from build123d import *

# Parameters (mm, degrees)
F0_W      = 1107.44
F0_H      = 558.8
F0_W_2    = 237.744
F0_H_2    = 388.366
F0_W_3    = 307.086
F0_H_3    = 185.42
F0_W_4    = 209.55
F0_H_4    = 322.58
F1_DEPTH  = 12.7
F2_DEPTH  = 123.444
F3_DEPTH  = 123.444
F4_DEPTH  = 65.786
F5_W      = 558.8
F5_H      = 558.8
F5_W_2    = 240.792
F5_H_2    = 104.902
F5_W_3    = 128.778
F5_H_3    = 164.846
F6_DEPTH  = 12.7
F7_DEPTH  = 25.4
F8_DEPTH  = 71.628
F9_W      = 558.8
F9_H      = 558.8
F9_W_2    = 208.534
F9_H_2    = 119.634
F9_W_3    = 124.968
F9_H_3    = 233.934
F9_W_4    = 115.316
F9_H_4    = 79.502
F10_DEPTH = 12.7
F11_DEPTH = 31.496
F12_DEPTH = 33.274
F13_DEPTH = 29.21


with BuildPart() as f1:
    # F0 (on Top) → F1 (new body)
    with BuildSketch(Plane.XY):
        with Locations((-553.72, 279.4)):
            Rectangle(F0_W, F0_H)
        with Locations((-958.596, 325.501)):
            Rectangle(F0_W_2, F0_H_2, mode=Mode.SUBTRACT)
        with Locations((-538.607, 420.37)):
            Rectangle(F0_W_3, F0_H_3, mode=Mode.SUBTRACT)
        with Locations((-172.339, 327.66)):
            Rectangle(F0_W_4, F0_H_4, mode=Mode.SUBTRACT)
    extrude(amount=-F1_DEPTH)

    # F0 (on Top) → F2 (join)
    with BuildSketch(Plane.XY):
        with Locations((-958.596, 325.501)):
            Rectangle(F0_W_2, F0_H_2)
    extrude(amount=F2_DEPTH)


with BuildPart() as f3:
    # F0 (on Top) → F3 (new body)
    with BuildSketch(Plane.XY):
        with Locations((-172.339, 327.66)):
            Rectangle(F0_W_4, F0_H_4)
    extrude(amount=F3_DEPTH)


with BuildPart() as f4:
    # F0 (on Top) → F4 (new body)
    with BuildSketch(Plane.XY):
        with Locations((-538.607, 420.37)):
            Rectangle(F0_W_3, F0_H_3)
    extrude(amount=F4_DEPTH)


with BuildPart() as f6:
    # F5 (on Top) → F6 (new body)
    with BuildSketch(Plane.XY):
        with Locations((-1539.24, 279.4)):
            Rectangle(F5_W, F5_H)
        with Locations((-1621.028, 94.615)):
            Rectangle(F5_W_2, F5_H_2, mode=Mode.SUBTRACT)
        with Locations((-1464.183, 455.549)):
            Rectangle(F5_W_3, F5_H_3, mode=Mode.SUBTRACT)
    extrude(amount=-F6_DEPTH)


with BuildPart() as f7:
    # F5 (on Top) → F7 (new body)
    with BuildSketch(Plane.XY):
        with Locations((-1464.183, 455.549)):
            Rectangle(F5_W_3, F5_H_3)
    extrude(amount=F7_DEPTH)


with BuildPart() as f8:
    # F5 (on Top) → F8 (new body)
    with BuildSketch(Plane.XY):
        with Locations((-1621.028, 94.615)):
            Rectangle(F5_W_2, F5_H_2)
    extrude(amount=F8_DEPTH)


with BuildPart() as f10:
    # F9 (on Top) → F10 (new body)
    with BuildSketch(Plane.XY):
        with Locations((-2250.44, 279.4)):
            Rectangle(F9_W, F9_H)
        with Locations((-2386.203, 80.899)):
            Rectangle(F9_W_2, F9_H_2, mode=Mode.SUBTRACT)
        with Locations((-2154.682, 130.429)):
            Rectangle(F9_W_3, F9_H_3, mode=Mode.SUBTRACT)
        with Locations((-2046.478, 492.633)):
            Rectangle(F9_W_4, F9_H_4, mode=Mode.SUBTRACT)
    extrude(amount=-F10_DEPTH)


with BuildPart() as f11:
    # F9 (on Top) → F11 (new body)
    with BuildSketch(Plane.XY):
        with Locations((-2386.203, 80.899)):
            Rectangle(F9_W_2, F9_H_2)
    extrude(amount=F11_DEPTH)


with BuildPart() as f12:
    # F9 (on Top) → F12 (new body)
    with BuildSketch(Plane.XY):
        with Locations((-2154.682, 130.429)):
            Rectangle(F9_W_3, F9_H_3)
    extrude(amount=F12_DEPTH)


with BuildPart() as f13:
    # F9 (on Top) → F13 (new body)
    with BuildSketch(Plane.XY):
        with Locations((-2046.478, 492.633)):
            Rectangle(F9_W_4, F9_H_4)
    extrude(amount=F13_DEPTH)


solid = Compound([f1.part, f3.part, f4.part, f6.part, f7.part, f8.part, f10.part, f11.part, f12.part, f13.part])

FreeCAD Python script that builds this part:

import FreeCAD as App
import Part
import Sketcher

V = App.Vector
Q = App.Units.Quantity


def add_polygon(sketch, points):
    """Adds a closed chain of lines whose ends are joined by coincident constraints."""
    first, n = sketch.GeometryCount, len(points)
    for a, b in zip(points, points[1:] + points[:1]):
        sketch.addGeometry(Part.LineSegment(App.Vector(*a, 0), App.Vector(*b, 0)), False)
    for i in range(n):
        sketch.addConstraint(Sketcher.Constraint("Coincident", first + i, 2, first + (i + 1) % n, 1))

doc = App.newDocument("Part")
params = doc.addObject("Spreadsheet::Sheet", "Params")
for row, (alias, value) in enumerate([
    ("sketch1_height", "22 in"),
    ("sketch1_width", "43.6 in"),
    ("sketch1_height2", "7.3 in"),
    ("sketch1_height3", "12.7 in"),
    ("sketch1_width2", "9.36 in"),
    ("pad1_length", "0.5 in"),
    ("sketch2_width", "9.36 in"),
    ("sketch2_height", "15.29 in"),
    ("pad2_length", "4.86 in"),
    ("sketch3_height", "12.7 in"),
    ("sketch3_width", "8.25 in"),
    ("pad3_length", "4.86 in"),
    ("sketch4_height", "7.3 in"),
    ("sketch4_width", "12.09 in"),
    ("pad4_length", "2.59 in"),
    ("sketch5_width", "22 in"),
    ("sketch5_width2", "9.48 in"),
    ("sketch5_width3", "5.07 in"),
    ("sketch5_height", "4.13 in"),
    ("sketch5_height2", "6.49 in"),
    ("pad5_length", "0.5 in"),
    ("sketch6_width", "5.07 in"),
    ("sketch6_height", "6.49 in"),
    ("pad6_length", "1 in"),
    ("sketch7_width", "9.48 in"),
    ("sketch7_height", "4.13 in"),
    ("pad7_length", "2.82 in"),
    ("sketch8_width", "22 in"),
    ("sketch8_width2", "8.21 in"),
    ("sketch8_width3", "4.92 in"),
    ("sketch8_width4", "4.54 in"),
    ("sketch8_height", "4.71 in"),
    ("pad8_length", "0.5 in"),
    ("sketch9_width", "8.21 in"),
    ("sketch9_height", "4.71 in"),
    ("pad9_length", "1.24 in"),
    ("sketch10_width", "4.92 in"),
    ("sketch10_height", "9.21 in"),
    ("pad10_length", "1.31 in"),
    ("sketch11_width", "4.54 in"),
    ("sketch11_height", "3.13 in"),
    ("pad11_length", "1.15 in"),
], start=1):
    params.set(f"A{row}", alias)
    params.set(f"B{row}", "=" + value)
    params.setAlias(f"B{row}", alias)

body = doc.addObject("PartDesign::Body", "Body")
body.AllowCompound = True

# Sketch on XY plane
sketch1 = body.newObject("Sketcher::SketchObject", "Sketch")
sketch1.AttachmentSupport = (doc.getObject("XY_Plane"), [""])
sketch1.MapMode = "FlatFace"
add_polygon(sketch1, [(-1107, 559), (-1107, 0), (0, 0), (0, 559)])  # lines 0-3
add_polygon(sketch1, [(-840, 131), (-1077, 131), (-1077, 520), (-840, 520)])  # lines 4-7
add_polygon(sketch1, [(-385, 328), (-692, 328), (-692, 513), (-385, 513)])  # lines 8-11
add_polygon(sketch1, [(-68, 166), (-277, 166), (-277, 489), (-68, 489)])  # lines 12-15
sketch1.addConstraint(Sketcher.Constraint("Vertical", 0))
sketch1.addConstraint(Sketcher.Constraint("Horizontal", 1))
sketch1.addConstraint(Sketcher.Constraint("Vertical", 2))
sketch1.addConstraint(Sketcher.Constraint("Horizontal", 3))
sketch1.addConstraint(Sketcher.Constraint("Horizontal", 4))
sketch1.addConstraint(Sketcher.Constraint("Vertical", 5))
sketch1.addConstraint(Sketcher.Constraint("Horizontal", 6))
sketch1.addConstraint(Sketcher.Constraint("Vertical", 7))
sketch1.addConstraint(Sketcher.Constraint("Horizontal", 8))
sketch1.addConstraint(Sketcher.Constraint("Vertical", 9))
sketch1.addConstraint(Sketcher.Constraint("Horizontal", 10))
sketch1.addConstraint(Sketcher.Constraint("Vertical", 11))
sketch1.addConstraint(Sketcher.Constraint("Horizontal", 12))
sketch1.addConstraint(Sketcher.Constraint("Vertical", 13))
sketch1.addConstraint(Sketcher.Constraint("Horizontal", 14))
sketch1.addConstraint(Sketcher.Constraint("Vertical", 15))
sketch1.addConstraint(Sketcher.Constraint("Coincident", 1, 2, -1, 1))
sketch1.addConstraint(Sketcher.Constraint("DistanceY", 0, 2, 0, 1, Q("22 in")))
sketch1.addConstraint(Sketcher.Constraint("DistanceX", 1, 1, 1, 2, Q("43.6 in")))
sketch1.addConstraint(Sketcher.Constraint("DistanceY", 9, 1, 9, 2, Q("7.3 in")))
sketch1.addConstraint(Sketcher.Constraint("DistanceY", 13, 1, 13, 2, Q("12.7 in")))
sketch1.addConstraint(Sketcher.Constraint("DistanceX", 4, 2, 4, 1, Q("9.36 in")))
sketch1.addConstraint(Sketcher.Constraint("DistanceX", 8, 2, 8, 1, Q("12.09 in")))
sketch1.addConstraint(Sketcher.Constraint("DistanceX", 12, 2, 12, 1, Q("8.25 in")))
sketch1.addConstraint(Sketcher.Constraint("DistanceY", 5, 1, 5, 2, Q("15.29 in")))
sketch1.addConstraint(Sketcher.Constraint("DistanceY", -1, 1, 8, 2, Q("12.9 in")))
sketch1.addConstraint(Sketcher.Constraint("DistanceX", 6, 2, 10, 2, Q("17.9 in")))
sketch1.addConstraint(Sketcher.Constraint("DistanceX", 10, 2, 14, 2, Q("12.5 in")))
sketch1.addConstraint(Sketcher.Constraint("DistanceX", 4, 2, -1, 1, Q("42.42 in")))
sketch1.addConstraint(Sketcher.Constraint("DistanceY", -1, 1, 4, 2, Q("5.17 in")))
sketch1.addConstraint(Sketcher.Constraint("DistanceY", -1, 1, 12, 2, Q("6.55 in")))
sketch1.setExpression("Constraints[33]", "Params.sketch1_height")
sketch1.setExpression("Constraints[34]", "Params.sketch1_width")
sketch1.setExpression("Constraints[35]", "Params.sketch1_height2")
sketch1.setExpression("Constraints[36]", "Params.sketch1_height3")
sketch1.setExpression("Constraints[37]", "Params.sketch1_width2")
pad1 = body.newObject("PartDesign::Pad", "Pad")
pad1.Profile = sketch1
pad1.setExpression("Length", "Params.pad1_length")
pad1.Reversed = True

# Sketch on XY plane
sketch2 = body.newObject("Sketcher::SketchObject", "Sketch001")
sketch2.AttachmentSupport = (doc.getObject("XY_Plane"), [""])
sketch2.MapMode = "FlatFace"
add_polygon(sketch2, [(-1077, 520), (-1077, 131), (-840, 131), (-840, 520)])  # lines 0-3
sketch2.addConstraint(Sketcher.Constraint("Vertical", 0))
sketch2.addConstraint(Sketcher.Constraint("Horizontal", 1))
sketch2.addConstraint(Sketcher.Constraint("Vertical", 2))
sketch2.addConstraint(Sketcher.Constraint("Horizontal", 3))
sketch2.addConstraint(Sketcher.Constraint("DistanceX", 1, 1, 1, 2, Q("9.36 in")))
sketch2.addConstraint(Sketcher.Constraint("DistanceY", 0, 2, 0, 1, Q("15.29 in")))
sketch2.addConstraint(Sketcher.Constraint("DistanceX", 0, 2, -1, 1, Q("42.42 in")))
sketch2.addConstraint(Sketcher.Constraint("DistanceY", -1, 1, 0, 2, Q("5.17 in")))
sketch2.setExpression("Constraints[8]", "Params.sketch2_width")
sketch2.setExpression("Constraints[9]", "Params.sketch2_height")
pad2 = body.newObject("PartDesign::Pad", "Pad001")
pad2.Profile = sketch2
pad2.setExpression("Length", "Params.pad2_length")
body2 = doc.addObject("PartDesign::Body", "Body001")

# Sketch on XY plane
sketch3 = body2.newObject("Sketcher::SketchObject", "Sketch002")
sketch3.AttachmentSupport = (doc.getObject("XY_Plane001"), [""])
sketch3.MapMode = "FlatFace"
add_polygon(sketch3, [(-277, 489), (-277, 166), (-68, 166), (-68, 489)])  # lines 0-3
sketch3.addConstraint(Sketcher.Constraint("Vertical", 0))
sketch3.addConstraint(Sketcher.Constraint("Horizontal", 1))
sketch3.addConstraint(Sketcher.Constraint("Vertical", 2))
sketch3.addConstraint(Sketcher.Constraint("Horizontal", 3))
sketch3.addConstraint(Sketcher.Constraint("DistanceY", 0, 2, 0, 1, Q("12.7 in")))
sketch3.addConstraint(Sketcher.Constraint("DistanceX", 1, 1, 1, 2, Q("8.25 in")))
sketch3.addConstraint(Sketcher.Constraint("DistanceX", 0, 2, -1, 1, Q("10.91 in")))
sketch3.addConstraint(Sketcher.Constraint("DistanceY", -1, 1, 0, 2, Q("6.55 in")))
sketch3.setExpression("Constraints[8]", "Params.sketch3_height")
sketch3.setExpression("Constraints[9]", "Params.sketch3_width")
pad3 = body2.newObject("PartDesign::Pad", "Pad002")
pad3.Profile = sketch3
pad3.setExpression("Length", "Params.pad3_length")
body3 = doc.addObject("PartDesign::Body", "Body002")

# Sketch on XY plane
sketch4 = body3.newObject("Sketcher::SketchObject", "Sketch003")
sketch4.AttachmentSupport = (doc.getObject("XY_Plane002"), [""])
sketch4.MapMode = "FlatFace"
add_polygon(sketch4, [(-692, 513), (-692, 328), (-385, 328), (-385, 513)])  # lines 0-3
sketch4.addConstraint(Sketcher.Constraint("Vertical", 0))
sketch4.addConstraint(Sketcher.Constraint("Horizontal", 1))
sketch4.addConstraint(Sketcher.Constraint("Vertical", 2))
sketch4.addConstraint(Sketcher.Constraint("Horizontal", 3))
sketch4.addConstraint(Sketcher.Constraint("DistanceY", 0, 2, 0, 1, Q("7.3 in")))
sketch4.addConstraint(Sketcher.Constraint("DistanceX", 1, 1, 1, 2, Q("12.09 in")))
sketch4.addConstraint(Sketcher.Constraint("DistanceY", -1, 1, 0, 2, Q("12.9 in")))
sketch4.addConstraint(Sketcher.Constraint("DistanceX", 0, 2, -1, 1, Q("27.25 in")))
sketch4.setExpression("Constraints[8]", "Params.sketch4_height")
sketch4.setExpression("Constraints[9]", "Params.sketch4_width")
pad4 = body3.newObject("PartDesign::Pad", "Pad003")
pad4.Profile = sketch4
pad4.setExpression("Length", "Params.pad4_length")
body4 = doc.addObject("PartDesign::Body", "Body003")

# Sketch on XY plane
sketch5 = body4.newObject("Sketcher::SketchObject", "Sketch004")
sketch5.AttachmentSupport = (doc.getObject("XY_Plane003"), [""])
sketch5.MapMode = "FlatFace"
add_polygon(sketch5, [(-1819, 559), (-1819, 0), (-1260, 0), (-1260, 559)])  # lines 0-3
add_polygon(sketch5, [(-1501, 42), (-1741, 42), (-1741, 147), (-1501, 147)])  # lines 4-7
add_polygon(sketch5, [(-1400, 373), (-1529, 373), (-1529, 538), (-1400, 538)])  # lines 8-11
sketch5.addConstraint(Sketcher.Constraint("Vertical", 0))
sketch5.addConstraint(Sketcher.Constraint("Horizontal", 1))
sketch5.addConstraint(Sketcher.Constraint("Vertical", 2))
sketch5.addConstraint(Sketcher.Constraint("Horizontal", 3))
sketch5.addConstraint(Sketcher.Constraint("Horizontal", 4))
sketch5.addConstraint(Sketcher.Constraint("Vertical", 5))
sketch5.addConstraint(Sketcher.Constraint("Horizontal", 6))
sketch5.addConstraint(Sketcher.Constraint("Vertical", 7))
sketch5.addConstraint(Sketcher.Constraint("Horizontal", 8))
sketch5.addConstraint(Sketcher.Constraint("Vertical", 9))
sketch5.addConstraint(Sketcher.Constraint("Horizontal", 10))
sketch5.addConstraint(Sketcher.Constraint("Vertical", 11))
sketch5.addConstraint(Sketcher.Constraint("PointOnObject", 0, 2, -1))
sketch5.addConstraint(Sketcher.Constraint("Equal", 3, 0))
sketch5.addConstraint(Sketcher.Constraint("DistanceX", 1, 1, 1, 2, Q("22 in")))
sketch5.addConstraint(Sketcher.Constraint("DistanceX", 4, 2, 4, 1, Q("9.48 in")))
sketch5.addConstraint(Sketcher.Constraint("DistanceX", 8, 2, 8, 1, Q("5.07 in")))
sketch5.addConstraint(Sketcher.Constraint("DistanceY", 5, 1, 5, 2, Q("4.13 in")))
sketch5.addConstraint(Sketcher.Constraint("DistanceY", 9, 1, 9, 2, Q("6.49 in")))
sketch5.addConstraint(Sketcher.Constraint("DistanceX", 0, 2, -1, 1, Q("71.6 in")))
sketch5.addConstraint(Sketcher.Constraint("DistanceX", 8, 2, 6, 2, Q("1.1 in")))
sketch5.addConstraint(Sketcher.Constraint("DistanceY", 6, 2, 8, 2, Q("8.9 in")))
sketch5.addConstraint(Sketcher.Constraint("DistanceX", 4, 2, -1, 1, Q("68.56 in")))
sketch5.addConstraint(Sketcher.Constraint("DistanceY", -1, 1, 4, 2, Q("1.66 in")))
sketch5.setExpression("Constraints[26]", "Params.sketch5_width")
sketch5.setExpression("Constraints[27]", "Params.sketch5_width2")
sketch5.setExpression("Constraints[28]", "Params.sketch5_width3")
sketch5.setExpression("Constraints[29]", "Params.sketch5_height")
sketch5.setExpression("Constraints[30]", "Params.sketch5_height2")
pad5 = body4.newObject("PartDesign::Pad", "Pad004")
pad5.Profile = sketch5
pad5.setExpression("Length", "Params.pad5_length")
pad5.Reversed = True
body5 = doc.addObject("PartDesign::Body", "Body004")

# Sketch on XY plane
sketch6 = body5.newObject("Sketcher::SketchObject", "Sketch005")
sketch6.AttachmentSupport = (doc.getObject("XY_Plane004"), [""])
sketch6.MapMode = "FlatFace"
add_polygon(sketch6, [(-1529, 538), (-1529, 373), (-1400, 373), (-1400, 538)])  # lines 0-3
sketch6.addConstraint(Sketcher.Constraint("Vertical", 0))
sketch6.addConstraint(Sketcher.Constraint("Horizontal", 1))
sketch6.addConstraint(Sketcher.Constraint("Vertical", 2))
sketch6.addConstraint(Sketcher.Constraint("Horizontal", 3))
sketch6.addConstraint(Sketcher.Constraint("DistanceX", 1, 1, 1, 2, Q("5.07 in")))
sketch6.addConstraint(Sketcher.Constraint("DistanceY", 0, 2, 0, 1, Q("6.49 in")))
sketch6.addConstraint(Sketcher.Constraint("DistanceX", 0, 2, -1, 1, Q("60.18 in")))
sketch6.addConstraint(Sketcher.Constraint("DistanceY", -1, 1, 0, 2, Q("14.69 in")))
sketch6.setExpression("Constraints[8]", "Params.sketch6_width")
sketch6.setExpression("Constraints[9]", "Params.sketch6_height")
pad6 = body5.newObject("PartDesign::Pad", "Pad005")
pad6.Profile = sketch6
pad6.setExpression("Length", "Params.pad6_length")
body6 = doc.addObject("PartDesign::Body", "Body005")

# Sketch on XY plane
sketch7 = body6.newObject("Sketcher::SketchObject", "Sketch006")
sketch7.AttachmentSupport = (doc.getObject("XY_Plane005"), [""])
sketch7.MapMode = "FlatFace"
add_polygon(sketch7, [(-1741, 147), (-1741, 42), (-1501, 42), (-1501, 147)])  # lines 0-3
sketch7.addConstraint(Sketcher.Constraint("Vertical", 0))
sketch7.addConstraint(Sketcher.Constraint("Horizontal", 1))
sketch7.addConstraint(Sketcher.Constraint("Vertical", 2))
sketch7.addConstraint(Sketcher.Constraint("Horizontal", 3))
sketch7.addConstraint(Sketcher.Constraint("DistanceX", 1, 1, 1, 2, Q("9.48 in")))
sketch7.addConstraint(Sketcher.Constraint("DistanceY", 0, 2, 0, 1, Q("4.13 in")))
sketch7.addConstraint(Sketcher.Constraint("DistanceX", 0, 2, -1, 1, Q("68.56 in")))
sketch7.addConstraint(Sketcher.Constraint("DistanceY", -1, 1, 0, 2, Q("1.66 in")))
sketch7.setExpression("Constraints[8]", "Params.sketch7_width")
sketch7.setExpression("Constraints[9]", "Params.sketch7_height")
pad7 = body6.newObject("PartDesign::Pad", "Pad006")
pad7.Profile = sketch7
pad7.setExpression("Length", "Params.pad7_length")
body7 = doc.addObject("PartDesign::Body", "Body006")

# Sketch on XY plane
sketch8 = body7.newObject("Sketcher::SketchObject", "Sketch007")
sketch8.AttachmentSupport = (doc.getObject("XY_Plane006"), [""])
sketch8.MapMode = "FlatFace"
add_polygon(sketch8, [(-2530, 559), (-2530, 0), (-1971, 0), (-1971, 559)])  # lines 0-3
add_polygon(sketch8, [(-2282, 21), (-2490, 21), (-2490, 141), (-2282, 141)])  # lines 4-7
add_polygon(sketch8, [(-2092, 13), (-2217, 13), (-2217, 247), (-2092, 247)])  # lines 8-11
add_polygon(sketch8, [(-1989, 453), (-2104, 453), (-2104, 532), (-1989, 532)])  # lines 12-15
sketch8.addConstraint(Sketcher.Constraint("Vertical", 0))
sketch8.addConstraint(Sketcher.Constraint("Horizontal", 1))
sketch8.addConstraint(Sketcher.Constraint("Vertical", 2))
sketch8.addConstraint(Sketcher.Constraint("Horizontal", 3))
sketch8.addConstraint(Sketcher.Constraint("Horizontal", 4))
sketch8.addConstraint(Sketcher.Constraint("Vertical", 5))
sketch8.addConstraint(Sketcher.Constraint("Horizontal", 6))
sketch8.addConstraint(Sketcher.Constraint("Vertical", 7))
sketch8.addConstraint(Sketcher.Constraint("Horizontal", 8))
sketch8.addConstraint(Sketcher.Constraint("Vertical", 9))
sketch8.addConstraint(Sketcher.Constraint("Horizontal", 10))
sketch8.addConstraint(Sketcher.Constraint("Vertical", 11))
sketch8.addConstraint(Sketcher.Constraint("Horizontal", 12))
sketch8.addConstraint(Sketcher.Constraint("Vertical", 13))
sketch8.addConstraint(Sketcher.Constraint("Horizontal", 14))
sketch8.addConstraint(Sketcher.Constraint("Vertical", 15))
sketch8.addConstraint(Sketcher.Constraint("PointOnObject", 0, 2, -1))
sketch8.addConstraint(Sketcher.Constraint("Equal", 3, 0))
sketch8.addConstraint(Sketcher.Constraint("DistanceX", 1, 1, 1, 2, Q("22 in")))
sketch8.addConstraint(Sketcher.Constraint("DistanceX", 6, 2, 12, 2, Q("7 in")))
sketch8.addConstraint(Sketcher.Constraint("DistanceX", 4, 2, 4, 1, Q("8.21 in")))
sketch8.addConstraint(Sketcher.Constraint("DistanceX", 8, 2, 8, 1, Q("4.92 in")))
sketch8.addConstraint(Sketcher.Constraint("DistanceX", 12, 2, 12, 1, Q("4.54 in")))
sketch8.addConstraint(Sketcher.Constraint("DistanceY", 5, 1, 5, 2, Q("4.71 in")))
sketch8.addConstraint(Sketcher.Constraint("DistanceY", 9, 1, 9, 2, Q("9.21 in")))
sketch8.addConstraint(Sketcher.Constraint("DistanceY", 13, 1, 13, 2, Q("3.13 in")))
sketch8.addConstraint(Sketcher.Constraint("DistanceX", 0, 2, -1, 1, Q("99.6 in")))
sketch8.addConstraint(Sketcher.Constraint("DistanceX", 14, 2, -1, 1, Q("78.3 in")))
sketch8.addConstraint(Sketcher.Constraint("DistanceY", 8, 2, 7, 2, Q("0.3 in")))
sketch8.addConstraint(Sketcher.Constraint("DistanceY", -1, 1, 4, 2, Q("0.83 in")))
sketch8.addConstraint(Sketcher.Constraint("DistanceX", 8, 2, -1, 1, Q("87.29 in")))
sketch8.addConstraint(Sketcher.Constraint("DistanceY", -1, 1, 12, 2, Q("17.83 in")))
sketch8.setExpression("Constraints[34]", "Params.sketch8_width")
sketch8.setExpression("Constraints[36]", "Params.sketch8_width2")
sketch8.setExpression("Constraints[37]", "Params.sketch8_width3")
sketch8.setExpression("Constraints[38]", "Params.sketch8_width4")
sketch8.setExpression("Constraints[39]", "Params.sketch8_height")
pad8 = body7.newObject("PartDesign::Pad", "Pad007")
pad8.Profile = sketch8
pad8.setExpression("Length", "Params.pad8_length")
pad8.Reversed = True
body8 = doc.addObject("PartDesign::Body", "Body007")

# Sketch on XY plane
sketch9 = body8.newObject("Sketcher::SketchObject", "Sketch008")
sketch9.AttachmentSupport = (doc.getObject("XY_Plane007"), [""])
sketch9.MapMode = "FlatFace"
add_polygon(sketch9, [(-2490, 141), (-2490, 21), (-2282, 21), (-2282, 141)])  # lines 0-3
sketch9.addConstraint(Sketcher.Constraint("Vertical", 0))
sketch9.addConstraint(Sketcher.Constraint("Horizontal", 1))
sketch9.addConstraint(Sketcher.Constraint("Vertical", 2))
sketch9.addConstraint(Sketcher.Constraint("Horizontal", 3))
sketch9.addConstraint(Sketcher.Constraint("DistanceX", 1, 1, 1, 2, Q("8.21 in")))
sketch9.addConstraint(Sketcher.Constraint("DistanceY", 0, 2, 0, 1, Q("4.71 in")))
sketch9.addConstraint(Sketcher.Constraint("DistanceX", 0, 2, -1, 1, Q("98.05 in")))
sketch9.addConstraint(Sketcher.Constraint("DistanceY", -1, 1, 0, 2, Q("0.83 in")))
sketch9.setExpression("Constraints[8]", "Params.sketch9_width")
sketch9.setExpression("Constraints[9]", "Params.sketch9_height")
pad9 = body8.newObject("PartDesign::Pad", "Pad008")
pad9.Profile = sketch9
pad9.setExpression("Length", "Params.pad9_length")
body9 = doc.addObject("PartDesign::Body", "Body008")

# Sketch on XY plane
sketch10 = body9.newObject("Sketcher::SketchObject", "Sketch009")
sketch10.AttachmentSupport = (doc.getObject("XY_Plane008"), [""])
sketch10.MapMode = "FlatFace"
add_polygon(sketch10, [(-2217, 247), (-2217, 13), (-2092, 13), (-2092, 247)])  # lines 0-3
sketch10.addConstraint(Sketcher.Constraint("Vertical", 0))
sketch10.addConstraint(Sketcher.Constraint("Horizontal", 1))
sketch10.addConstraint(Sketcher.Constraint("Vertical", 2))
sketch10.addConstraint(Sketcher.Constraint("Horizontal", 3))
sketch10.addConstraint(Sketcher.Constraint("DistanceX", 1, 1, 1, 2, Q("4.92 in")))
sketch10.addConstraint(Sketcher.Constraint("DistanceY", 0, 2, 0, 1, Q("9.21 in")))
sketch10.addConstraint(Sketcher.Constraint("DistanceX", 0, 2, -1, 1, Q("87.29 in")))
sketch10.addConstraint(Sketcher.Constraint("DistanceY", -1, 1, 0, 2, Q("0.53 in")))
sketch10.setExpression("Constraints[8]", "Params.sketch10_width")
sketch10.setExpression("Constraints[9]", "Params.sketch10_height")
pad10 = body9.newObject("PartDesign::Pad", "Pad009")
pad10.Profile = sketch10
pad10.setExpression("Length", "Params.pad10_length")
body10 = doc.addObject("PartDesign::Body", "Body009")

# Sketch on XY plane
sketch11 = body10.newObject("Sketcher::SketchObject", "Sketch010")
sketch11.AttachmentSupport = (doc.getObject("XY_Plane009"), [""])
sketch11.MapMode = "FlatFace"
add_polygon(sketch11, [(-2104, 532), (-2104, 453), (-1989, 453), (-1989, 532)])  # lines 0-3
sketch11.addConstraint(Sketcher.Constraint("Vertical", 0))
sketch11.addConstraint(Sketcher.Constraint("Horizontal", 1))
sketch11.addConstraint(Sketcher.Constraint("Vertical", 2))
sketch11.addConstraint(Sketcher.Constraint("Horizontal", 3))
sketch11.addConstraint(Sketcher.Constraint("DistanceX", 1, 1, 1, 2, Q("4.54 in")))
sketch11.addConstraint(Sketcher.Constraint("DistanceY", 0, 2, 0, 1, Q("3.13 in")))
sketch11.addConstraint(Sketcher.Constraint("DistanceX", 1, 2, -1, 1, Q("78.3 in")))
sketch11.addConstraint(Sketcher.Constraint("DistanceY", -1, 1, 0, 2, Q("17.83 in")))
sketch11.setExpression("Constraints[8]", "Params.sketch11_width")
sketch11.setExpression("Constraints[9]", "Params.sketch11_height")
pad11 = body10.newObject("PartDesign::Pad", "Pad010")
pad11.Profile = sketch11
pad11.setExpression("Length", "Params.pad11_length")

doc.recompute()
